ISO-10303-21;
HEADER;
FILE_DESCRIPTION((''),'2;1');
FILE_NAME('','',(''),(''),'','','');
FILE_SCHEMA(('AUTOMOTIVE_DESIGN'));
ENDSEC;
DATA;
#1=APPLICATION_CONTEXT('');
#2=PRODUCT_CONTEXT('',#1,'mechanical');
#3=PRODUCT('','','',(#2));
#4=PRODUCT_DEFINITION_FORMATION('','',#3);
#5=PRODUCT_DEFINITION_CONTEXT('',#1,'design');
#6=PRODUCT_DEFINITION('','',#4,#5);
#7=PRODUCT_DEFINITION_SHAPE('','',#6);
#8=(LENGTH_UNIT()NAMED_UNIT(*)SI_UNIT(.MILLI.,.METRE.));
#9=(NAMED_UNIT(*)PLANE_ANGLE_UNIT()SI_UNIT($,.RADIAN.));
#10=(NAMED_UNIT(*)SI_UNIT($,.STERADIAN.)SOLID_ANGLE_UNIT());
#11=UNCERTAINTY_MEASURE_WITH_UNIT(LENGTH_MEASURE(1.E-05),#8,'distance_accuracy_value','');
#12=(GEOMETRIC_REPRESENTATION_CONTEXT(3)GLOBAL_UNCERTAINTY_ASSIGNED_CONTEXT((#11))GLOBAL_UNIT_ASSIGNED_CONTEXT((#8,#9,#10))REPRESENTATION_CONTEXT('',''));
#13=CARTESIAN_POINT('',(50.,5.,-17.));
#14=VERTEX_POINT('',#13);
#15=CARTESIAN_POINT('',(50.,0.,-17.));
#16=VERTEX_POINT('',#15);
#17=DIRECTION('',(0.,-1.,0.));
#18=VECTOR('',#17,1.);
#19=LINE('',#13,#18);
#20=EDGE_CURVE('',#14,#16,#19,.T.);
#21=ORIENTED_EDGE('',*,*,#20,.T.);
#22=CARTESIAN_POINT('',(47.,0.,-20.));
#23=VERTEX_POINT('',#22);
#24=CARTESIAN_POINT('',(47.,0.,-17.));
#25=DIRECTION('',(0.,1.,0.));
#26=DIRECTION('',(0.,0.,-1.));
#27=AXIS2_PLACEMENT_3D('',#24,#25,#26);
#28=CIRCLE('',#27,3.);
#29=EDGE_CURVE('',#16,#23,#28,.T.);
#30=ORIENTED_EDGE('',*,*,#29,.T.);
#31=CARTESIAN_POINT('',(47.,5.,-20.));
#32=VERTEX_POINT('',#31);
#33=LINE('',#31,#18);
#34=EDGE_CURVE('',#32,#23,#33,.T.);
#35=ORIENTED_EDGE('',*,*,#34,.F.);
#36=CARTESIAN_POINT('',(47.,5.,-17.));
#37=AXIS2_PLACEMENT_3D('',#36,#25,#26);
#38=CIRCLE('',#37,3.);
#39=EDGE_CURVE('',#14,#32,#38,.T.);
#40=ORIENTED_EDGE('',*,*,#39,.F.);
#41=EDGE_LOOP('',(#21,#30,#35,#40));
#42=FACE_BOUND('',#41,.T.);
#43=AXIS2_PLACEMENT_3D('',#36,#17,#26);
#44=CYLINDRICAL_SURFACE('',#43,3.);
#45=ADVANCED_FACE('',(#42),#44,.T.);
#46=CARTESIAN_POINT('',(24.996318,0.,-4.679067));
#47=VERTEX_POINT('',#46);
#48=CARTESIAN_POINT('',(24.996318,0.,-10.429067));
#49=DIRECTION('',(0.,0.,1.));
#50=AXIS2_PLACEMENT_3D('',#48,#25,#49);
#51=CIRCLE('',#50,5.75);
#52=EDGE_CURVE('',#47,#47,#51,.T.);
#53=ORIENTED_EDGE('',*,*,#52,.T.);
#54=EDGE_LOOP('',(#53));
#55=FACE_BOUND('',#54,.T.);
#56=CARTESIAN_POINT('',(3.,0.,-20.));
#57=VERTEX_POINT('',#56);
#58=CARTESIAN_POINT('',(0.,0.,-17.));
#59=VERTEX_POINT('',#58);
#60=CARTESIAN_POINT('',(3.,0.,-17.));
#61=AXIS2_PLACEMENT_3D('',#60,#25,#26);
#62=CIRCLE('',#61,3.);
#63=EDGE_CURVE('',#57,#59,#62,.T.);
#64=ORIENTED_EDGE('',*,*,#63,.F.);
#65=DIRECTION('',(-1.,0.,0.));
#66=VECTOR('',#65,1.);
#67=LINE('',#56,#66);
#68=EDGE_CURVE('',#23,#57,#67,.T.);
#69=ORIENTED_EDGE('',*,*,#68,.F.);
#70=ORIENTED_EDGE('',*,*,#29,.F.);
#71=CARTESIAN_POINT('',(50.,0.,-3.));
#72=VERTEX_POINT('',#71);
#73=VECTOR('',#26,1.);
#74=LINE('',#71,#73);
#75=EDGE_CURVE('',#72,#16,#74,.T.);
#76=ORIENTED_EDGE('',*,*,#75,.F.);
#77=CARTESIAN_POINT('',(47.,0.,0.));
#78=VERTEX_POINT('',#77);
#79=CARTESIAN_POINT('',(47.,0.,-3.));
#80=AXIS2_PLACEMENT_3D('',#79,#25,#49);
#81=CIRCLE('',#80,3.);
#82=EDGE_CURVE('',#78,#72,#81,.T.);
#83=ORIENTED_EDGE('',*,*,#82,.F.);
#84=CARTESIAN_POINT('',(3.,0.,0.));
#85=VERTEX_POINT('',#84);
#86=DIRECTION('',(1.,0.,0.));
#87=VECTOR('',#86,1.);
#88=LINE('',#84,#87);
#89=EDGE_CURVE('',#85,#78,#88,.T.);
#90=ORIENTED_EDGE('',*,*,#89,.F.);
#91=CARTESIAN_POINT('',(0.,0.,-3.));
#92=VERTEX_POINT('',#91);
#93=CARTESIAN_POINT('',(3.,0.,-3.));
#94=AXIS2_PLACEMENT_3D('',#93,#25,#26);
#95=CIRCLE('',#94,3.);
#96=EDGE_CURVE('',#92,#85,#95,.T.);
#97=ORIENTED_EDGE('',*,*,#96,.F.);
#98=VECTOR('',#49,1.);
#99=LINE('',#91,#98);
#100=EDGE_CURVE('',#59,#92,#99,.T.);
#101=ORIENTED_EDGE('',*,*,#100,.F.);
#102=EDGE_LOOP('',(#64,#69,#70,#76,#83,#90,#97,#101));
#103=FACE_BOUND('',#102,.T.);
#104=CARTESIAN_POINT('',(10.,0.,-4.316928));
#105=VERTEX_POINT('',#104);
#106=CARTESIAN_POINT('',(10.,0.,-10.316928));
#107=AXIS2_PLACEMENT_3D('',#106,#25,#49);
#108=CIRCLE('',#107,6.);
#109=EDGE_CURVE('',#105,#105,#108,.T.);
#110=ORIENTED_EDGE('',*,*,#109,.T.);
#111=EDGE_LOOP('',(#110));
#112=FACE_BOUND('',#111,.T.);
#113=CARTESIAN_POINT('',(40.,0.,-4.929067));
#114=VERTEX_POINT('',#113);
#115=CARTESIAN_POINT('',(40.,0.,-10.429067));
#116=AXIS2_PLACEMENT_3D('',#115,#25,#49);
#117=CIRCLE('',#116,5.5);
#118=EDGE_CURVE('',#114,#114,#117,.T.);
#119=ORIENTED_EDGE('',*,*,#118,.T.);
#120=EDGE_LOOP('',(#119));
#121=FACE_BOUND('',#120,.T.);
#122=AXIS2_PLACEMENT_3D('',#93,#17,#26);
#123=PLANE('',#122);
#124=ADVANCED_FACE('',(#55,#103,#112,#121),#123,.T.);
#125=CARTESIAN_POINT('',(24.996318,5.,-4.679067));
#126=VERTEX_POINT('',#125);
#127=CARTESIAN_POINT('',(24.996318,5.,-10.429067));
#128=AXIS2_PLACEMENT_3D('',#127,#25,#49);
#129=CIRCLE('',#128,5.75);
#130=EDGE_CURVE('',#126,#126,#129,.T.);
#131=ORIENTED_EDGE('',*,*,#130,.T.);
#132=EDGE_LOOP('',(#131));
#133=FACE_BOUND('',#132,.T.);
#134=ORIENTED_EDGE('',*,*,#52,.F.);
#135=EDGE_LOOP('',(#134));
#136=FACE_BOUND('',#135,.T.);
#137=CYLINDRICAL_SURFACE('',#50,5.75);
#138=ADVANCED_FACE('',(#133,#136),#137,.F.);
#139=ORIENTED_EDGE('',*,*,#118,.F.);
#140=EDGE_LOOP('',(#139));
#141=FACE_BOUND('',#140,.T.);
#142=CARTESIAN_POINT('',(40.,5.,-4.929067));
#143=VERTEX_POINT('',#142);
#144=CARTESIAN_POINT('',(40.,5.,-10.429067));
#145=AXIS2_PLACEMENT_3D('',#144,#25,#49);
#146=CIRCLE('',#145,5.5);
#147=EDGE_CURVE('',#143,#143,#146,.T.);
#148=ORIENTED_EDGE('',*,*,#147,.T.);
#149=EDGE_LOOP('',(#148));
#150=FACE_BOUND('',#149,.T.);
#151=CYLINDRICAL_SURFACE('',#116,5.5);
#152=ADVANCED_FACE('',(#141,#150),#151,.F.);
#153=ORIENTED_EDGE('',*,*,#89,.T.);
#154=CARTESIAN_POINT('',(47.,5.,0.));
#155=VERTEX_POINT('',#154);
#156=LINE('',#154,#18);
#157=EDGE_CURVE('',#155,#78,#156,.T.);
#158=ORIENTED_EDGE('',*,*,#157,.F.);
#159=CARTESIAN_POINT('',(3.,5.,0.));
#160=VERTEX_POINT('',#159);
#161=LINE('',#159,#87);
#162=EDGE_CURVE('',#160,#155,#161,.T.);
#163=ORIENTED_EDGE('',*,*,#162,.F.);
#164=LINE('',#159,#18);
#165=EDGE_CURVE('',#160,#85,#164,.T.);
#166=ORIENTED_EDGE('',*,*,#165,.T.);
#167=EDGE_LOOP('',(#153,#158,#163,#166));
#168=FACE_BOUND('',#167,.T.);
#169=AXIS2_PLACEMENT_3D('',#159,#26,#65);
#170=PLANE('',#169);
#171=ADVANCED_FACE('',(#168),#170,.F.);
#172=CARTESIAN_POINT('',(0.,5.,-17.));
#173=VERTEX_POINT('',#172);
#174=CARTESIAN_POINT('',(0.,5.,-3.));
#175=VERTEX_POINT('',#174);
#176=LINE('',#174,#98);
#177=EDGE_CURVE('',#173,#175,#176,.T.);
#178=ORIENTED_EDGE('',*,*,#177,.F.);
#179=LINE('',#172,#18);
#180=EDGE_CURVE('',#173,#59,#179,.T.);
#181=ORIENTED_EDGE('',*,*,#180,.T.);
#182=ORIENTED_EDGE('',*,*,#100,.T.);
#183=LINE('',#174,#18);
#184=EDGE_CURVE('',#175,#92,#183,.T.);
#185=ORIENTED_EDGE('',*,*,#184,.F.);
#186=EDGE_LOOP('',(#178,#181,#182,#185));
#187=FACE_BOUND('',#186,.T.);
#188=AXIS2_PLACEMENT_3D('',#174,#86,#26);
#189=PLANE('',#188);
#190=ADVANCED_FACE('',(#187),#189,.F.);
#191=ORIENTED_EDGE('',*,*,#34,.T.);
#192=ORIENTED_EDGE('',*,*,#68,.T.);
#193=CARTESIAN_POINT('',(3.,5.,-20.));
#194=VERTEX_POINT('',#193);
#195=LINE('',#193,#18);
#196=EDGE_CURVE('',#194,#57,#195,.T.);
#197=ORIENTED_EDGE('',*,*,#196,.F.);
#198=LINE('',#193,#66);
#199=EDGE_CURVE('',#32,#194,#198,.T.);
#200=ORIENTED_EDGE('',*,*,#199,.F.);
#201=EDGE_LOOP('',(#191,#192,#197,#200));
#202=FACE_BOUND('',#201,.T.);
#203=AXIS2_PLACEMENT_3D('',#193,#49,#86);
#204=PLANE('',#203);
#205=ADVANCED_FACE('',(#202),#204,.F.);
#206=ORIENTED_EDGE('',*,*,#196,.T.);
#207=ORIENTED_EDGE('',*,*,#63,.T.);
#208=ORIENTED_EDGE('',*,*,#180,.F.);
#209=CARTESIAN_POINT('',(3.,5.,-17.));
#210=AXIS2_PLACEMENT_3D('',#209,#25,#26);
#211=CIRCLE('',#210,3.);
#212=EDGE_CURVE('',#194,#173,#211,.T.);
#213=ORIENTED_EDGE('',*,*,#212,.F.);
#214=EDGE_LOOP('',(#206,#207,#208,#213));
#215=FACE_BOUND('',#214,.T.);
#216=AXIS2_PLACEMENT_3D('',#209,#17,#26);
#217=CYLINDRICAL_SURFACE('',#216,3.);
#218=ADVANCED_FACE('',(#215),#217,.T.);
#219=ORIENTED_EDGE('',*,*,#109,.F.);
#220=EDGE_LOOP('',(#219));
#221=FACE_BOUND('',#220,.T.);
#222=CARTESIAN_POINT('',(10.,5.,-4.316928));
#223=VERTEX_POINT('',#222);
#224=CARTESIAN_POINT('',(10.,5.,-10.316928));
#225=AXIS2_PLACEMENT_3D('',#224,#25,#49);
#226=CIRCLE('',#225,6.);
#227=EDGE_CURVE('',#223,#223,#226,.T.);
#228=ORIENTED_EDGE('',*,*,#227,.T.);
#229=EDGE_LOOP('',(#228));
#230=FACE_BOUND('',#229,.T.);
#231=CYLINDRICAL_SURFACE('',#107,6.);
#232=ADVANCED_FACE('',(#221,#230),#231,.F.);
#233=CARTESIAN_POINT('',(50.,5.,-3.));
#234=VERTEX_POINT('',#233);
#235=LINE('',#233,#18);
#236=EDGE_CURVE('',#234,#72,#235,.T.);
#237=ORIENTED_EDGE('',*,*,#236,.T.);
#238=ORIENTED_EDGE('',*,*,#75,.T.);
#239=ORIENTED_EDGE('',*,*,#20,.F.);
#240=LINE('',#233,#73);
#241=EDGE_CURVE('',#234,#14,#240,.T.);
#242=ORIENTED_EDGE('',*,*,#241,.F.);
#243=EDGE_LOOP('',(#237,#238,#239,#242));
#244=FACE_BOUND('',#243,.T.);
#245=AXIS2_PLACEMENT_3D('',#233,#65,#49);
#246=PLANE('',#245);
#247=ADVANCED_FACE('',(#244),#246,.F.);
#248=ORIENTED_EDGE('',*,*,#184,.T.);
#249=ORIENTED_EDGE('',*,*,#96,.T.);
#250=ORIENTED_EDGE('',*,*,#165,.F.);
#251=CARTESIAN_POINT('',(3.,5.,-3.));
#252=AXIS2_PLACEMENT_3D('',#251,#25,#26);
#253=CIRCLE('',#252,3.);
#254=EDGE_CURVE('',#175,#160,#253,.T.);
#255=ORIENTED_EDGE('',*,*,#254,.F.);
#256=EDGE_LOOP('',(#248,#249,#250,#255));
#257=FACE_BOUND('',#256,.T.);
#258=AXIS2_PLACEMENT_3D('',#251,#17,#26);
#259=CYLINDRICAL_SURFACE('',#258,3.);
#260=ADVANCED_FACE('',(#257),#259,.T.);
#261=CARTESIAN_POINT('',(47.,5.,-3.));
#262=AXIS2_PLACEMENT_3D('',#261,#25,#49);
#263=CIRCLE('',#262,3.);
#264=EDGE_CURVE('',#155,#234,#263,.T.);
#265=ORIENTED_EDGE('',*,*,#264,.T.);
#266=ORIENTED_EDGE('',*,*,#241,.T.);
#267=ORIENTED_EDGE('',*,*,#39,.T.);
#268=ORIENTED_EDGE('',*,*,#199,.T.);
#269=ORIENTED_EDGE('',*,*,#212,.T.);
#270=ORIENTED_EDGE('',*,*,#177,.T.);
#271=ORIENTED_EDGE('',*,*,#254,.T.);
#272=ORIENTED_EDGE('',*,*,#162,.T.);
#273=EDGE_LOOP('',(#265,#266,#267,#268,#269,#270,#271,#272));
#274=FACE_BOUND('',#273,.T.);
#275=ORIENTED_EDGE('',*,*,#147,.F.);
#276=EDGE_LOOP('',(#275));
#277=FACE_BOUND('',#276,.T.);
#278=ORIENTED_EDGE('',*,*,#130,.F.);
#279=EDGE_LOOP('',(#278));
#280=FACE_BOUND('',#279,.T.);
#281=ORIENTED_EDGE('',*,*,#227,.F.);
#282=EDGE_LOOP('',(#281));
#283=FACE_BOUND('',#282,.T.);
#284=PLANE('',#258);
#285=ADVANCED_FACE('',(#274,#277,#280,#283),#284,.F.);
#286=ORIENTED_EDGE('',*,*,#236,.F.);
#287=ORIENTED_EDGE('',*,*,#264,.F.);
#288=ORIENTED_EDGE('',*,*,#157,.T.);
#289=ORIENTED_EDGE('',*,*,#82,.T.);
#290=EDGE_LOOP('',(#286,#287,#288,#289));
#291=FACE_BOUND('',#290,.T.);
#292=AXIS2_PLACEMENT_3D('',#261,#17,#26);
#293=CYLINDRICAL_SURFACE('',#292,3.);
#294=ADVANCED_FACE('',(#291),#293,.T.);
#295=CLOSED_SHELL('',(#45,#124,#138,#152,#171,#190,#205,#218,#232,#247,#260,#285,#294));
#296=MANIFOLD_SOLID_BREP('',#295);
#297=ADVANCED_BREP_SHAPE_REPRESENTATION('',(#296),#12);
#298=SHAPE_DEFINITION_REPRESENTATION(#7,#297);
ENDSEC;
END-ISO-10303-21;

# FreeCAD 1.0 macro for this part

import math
import FreeCAD as App
import Part
import Sketcher
from FreeCAD import Vector

doc = App.newDocument("Part")
body = doc.addObject("PartDesign::Body", "Body")

# Sketch on XZ plane
sketch1 = doc.addObject("Sketcher::SketchObject", "Sketch")
body.addObject(sketch1)
sketch1.AttachmentSupport = (doc.XZ_Plane, [""])
sketch1.MapMode = "FlatFace"
sketch1.addGeometry([
    Part.LineSegment(Vector(3, 0, 0), Vector(47, 0, 0)),  # 0
    Part.ArcOfCircle(Part.Circle(Vector(47, -3, 0), Vector(0, 0, 1), 3), math.radians(0), math.radians(90)),  # 1
    Part.LineSegment(Vector(50, -3, 0), Vector(50, -17, 0)),  # 2
    Part.ArcOfCircle(Part.Circle(Vector(47, -17, 0), Vector(0, 0, 1), 3), math.radians(-90), math.radians(0)),  # 3
    Part.LineSegment(Vector(47, -20, 0), Vector(3, -20, 0)),  # 4
    Part.ArcOfCircle(Part.Circle(Vector(3, -17, 0), Vector(0, 0, 1), 3), math.radians(180), math.radians(270)),  # 5
    Part.LineSegment(Vector(0, -17, 0), Vector(0, -3, 0)),  # 6
    Part.ArcOfCircle(Part.Circle(Vector(3, -3, 0), Vector(0, 0, 1), 3), math.radians(90), math.radians(180)),  # 7
], False)
sketch1.addConstraint([
    Sketcher.Constraint("Tangent", 0, 2, 1, 2),
    Sketcher.Constraint("Tangent", 1, 1, 2, 1),
    Sketcher.Constraint("Tangent", 2, 2, 3, 2),
    Sketcher.Constraint("Tangent", 3, 1, 4, 1),
    Sketcher.Constraint("Tangent", 4, 2, 5, 2),
    Sketcher.Constraint("Tangent", 5, 1, 6, 1),
    Sketcher.Constraint("Tangent", 6, 2, 7, 2),
    Sketcher.Constraint("Tangent", 7, 1, 0, 1),
    Sketcher.Constraint("Horizontal", 0),
    Sketcher.Constraint("Vertical", 2),
    Sketcher.Constraint("Horizontal", 4),
    Sketcher.Constraint("Vertical", 6),
    Sketcher.Constraint("Equal", 1, 3),
    Sketcher.Constraint("Equal", 3, 5),
    Sketcher.Constraint("Equal", 5, 7),
    Sketcher.Constraint("PointOnObject", 0, 2, -1),
    Sketcher.Constraint("PointOnObject", 5, 1, -2),
    Sketcher.Constraint("Radius", 1, 3.0),
    Sketcher.Constraint("DistanceX", 0, 1, 0, 2, 44.0),
    Sketcher.Constraint("DistanceY", 2, 2, 2, 1, 14.0),
])
pad1 = doc.addObject("PartDesign::Pad", "Pad")
body.addObject(pad1)
pad1.Profile = sketch1
pad1.Length = 5
pad1.Reversed = True

# Sketch on XZ plane
sketch2 = doc.addObject("Sketcher::SketchObject", "Sketch001")
body.addObject(sketch2)
sketch2.AttachmentSupport = (doc.XZ_Plane, [""])
sketch2.MapMode = "FlatFace"
sketch2.AttachmentOffset = App.Placement(Vector(0, 0, -5), App.Rotation())
sketch2.addGeometry([
    Part.Circle(Vector(10, -10, 0), Vector(0, 0, 1), 6),
    Part.Circle(Vector(25, -10, 0), Vector(0, 0, 1), 6),
    Part.Circle(Vector(40, -10, 0), Vector(0, 0, 1), 6),
], False)
sketch2.addConstraint([
    Sketcher.Constraint("Horizontal", 1, 3, 2, 3),
    Sketcher.Constraint("Diameter", 0, 12.0),
    Sketcher.Constraint("Diameter", 2, 11.0),
    Sketcher.Constraint("Diameter", 1, 11.5),
    Sketcher.Constraint("DistanceX", -1, 1, 0, 3, 10.0),
    Sketcher.Constraint("DistanceX", -1, 1, 2, 3, 40.0),
    Sketcher.Constraint("DistanceY", 1, 3, 0, 3, 0.11214),
    Sketcher.Constraint("DistanceY", 0, 3, -1, 1, 10.316928),
    Sketcher.Constraint("DistanceX", -1, 1, 1, 3, 24.996318),
])
pocket1 = doc.addObject("PartDesign::Pocket", "Pocket")
body.addObject(pocket1)
pocket1.Profile = sketch2
pocket1.Length = 5
pocket1.Reversed = True

doc.recompute()
